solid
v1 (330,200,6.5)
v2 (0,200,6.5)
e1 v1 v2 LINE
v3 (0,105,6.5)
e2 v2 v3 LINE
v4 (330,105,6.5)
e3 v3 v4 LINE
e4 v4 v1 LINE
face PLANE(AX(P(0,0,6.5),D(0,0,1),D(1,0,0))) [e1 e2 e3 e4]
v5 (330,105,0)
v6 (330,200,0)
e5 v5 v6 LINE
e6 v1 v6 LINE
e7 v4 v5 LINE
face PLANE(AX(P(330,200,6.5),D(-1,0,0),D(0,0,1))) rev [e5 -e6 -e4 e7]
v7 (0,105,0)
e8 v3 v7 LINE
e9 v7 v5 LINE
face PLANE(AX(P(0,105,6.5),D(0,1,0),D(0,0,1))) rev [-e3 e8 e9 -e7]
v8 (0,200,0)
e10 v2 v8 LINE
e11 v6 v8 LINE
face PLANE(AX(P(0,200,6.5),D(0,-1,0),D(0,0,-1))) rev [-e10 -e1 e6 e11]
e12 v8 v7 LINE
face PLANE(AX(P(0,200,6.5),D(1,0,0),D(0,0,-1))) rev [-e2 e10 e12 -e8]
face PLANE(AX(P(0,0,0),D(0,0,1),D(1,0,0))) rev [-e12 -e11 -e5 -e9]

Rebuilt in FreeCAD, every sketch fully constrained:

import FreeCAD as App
import Part
import Sketcher
from FreeCAD import Vector
Q = App.Units.Quantity


def add_polygon(sketch, points):
    """Adds a closed chain of lines whose ends are joined by coincident constraints."""
    first, n = sketch.GeometryCount, len(points)
    for a, b in zip(points, points[1:] + points[:1]):
        sketch.addGeometry(Part.LineSegment(App.Vector(*a, 0), App.Vector(*b, 0)), False)
    for i in range(n):
        sketch.addConstraint(Sketcher.Constraint("Coincident", first + i, 2, first + (i + 1) % n, 1))

doc = App.newDocument("Part")
body = doc.addObject("PartDesign::Body", "Body")

# Sketch on XY plane
sketch1 = doc.addObject("Sketcher::SketchObject", "Sketch")
body.addObject(sketch1)
sketch1.AttachmentSupport = (doc.XY_Plane, [""])
sketch1.MapMode = "FlatFace"
add_polygon(sketch1, [(0, 200), (0, 105), (330, 105), (330, 200)])  # lines 0-3
sketch1.addConstraint([
    Sketcher.Constraint("Vertical", 0),
    Sketcher.Constraint("Horizontal", 1),
    Sketcher.Constraint("Vertical", 2),
    Sketcher.Constraint("Horizontal", 3),
    Sketcher.Constraint("PointOnObject", 0, 2, -2),
    Sketcher.Constraint("DistanceX", 1, 1, 1, 2, Q("330 mm")),
    Sketcher.Constraint("DistanceY", 0, 2, 0, 1, Q("95 mm")),
    Sketcher.Constraint("DistanceY", -1, 1, 0, 2, Q("105 mm")),
])
pad1 = doc.addObject("PartDesign::Pad", "Pad")
body.addObject(pad1)
pad1.Profile = sketch1
pad1.Length = 6.5

doc.recompute()
